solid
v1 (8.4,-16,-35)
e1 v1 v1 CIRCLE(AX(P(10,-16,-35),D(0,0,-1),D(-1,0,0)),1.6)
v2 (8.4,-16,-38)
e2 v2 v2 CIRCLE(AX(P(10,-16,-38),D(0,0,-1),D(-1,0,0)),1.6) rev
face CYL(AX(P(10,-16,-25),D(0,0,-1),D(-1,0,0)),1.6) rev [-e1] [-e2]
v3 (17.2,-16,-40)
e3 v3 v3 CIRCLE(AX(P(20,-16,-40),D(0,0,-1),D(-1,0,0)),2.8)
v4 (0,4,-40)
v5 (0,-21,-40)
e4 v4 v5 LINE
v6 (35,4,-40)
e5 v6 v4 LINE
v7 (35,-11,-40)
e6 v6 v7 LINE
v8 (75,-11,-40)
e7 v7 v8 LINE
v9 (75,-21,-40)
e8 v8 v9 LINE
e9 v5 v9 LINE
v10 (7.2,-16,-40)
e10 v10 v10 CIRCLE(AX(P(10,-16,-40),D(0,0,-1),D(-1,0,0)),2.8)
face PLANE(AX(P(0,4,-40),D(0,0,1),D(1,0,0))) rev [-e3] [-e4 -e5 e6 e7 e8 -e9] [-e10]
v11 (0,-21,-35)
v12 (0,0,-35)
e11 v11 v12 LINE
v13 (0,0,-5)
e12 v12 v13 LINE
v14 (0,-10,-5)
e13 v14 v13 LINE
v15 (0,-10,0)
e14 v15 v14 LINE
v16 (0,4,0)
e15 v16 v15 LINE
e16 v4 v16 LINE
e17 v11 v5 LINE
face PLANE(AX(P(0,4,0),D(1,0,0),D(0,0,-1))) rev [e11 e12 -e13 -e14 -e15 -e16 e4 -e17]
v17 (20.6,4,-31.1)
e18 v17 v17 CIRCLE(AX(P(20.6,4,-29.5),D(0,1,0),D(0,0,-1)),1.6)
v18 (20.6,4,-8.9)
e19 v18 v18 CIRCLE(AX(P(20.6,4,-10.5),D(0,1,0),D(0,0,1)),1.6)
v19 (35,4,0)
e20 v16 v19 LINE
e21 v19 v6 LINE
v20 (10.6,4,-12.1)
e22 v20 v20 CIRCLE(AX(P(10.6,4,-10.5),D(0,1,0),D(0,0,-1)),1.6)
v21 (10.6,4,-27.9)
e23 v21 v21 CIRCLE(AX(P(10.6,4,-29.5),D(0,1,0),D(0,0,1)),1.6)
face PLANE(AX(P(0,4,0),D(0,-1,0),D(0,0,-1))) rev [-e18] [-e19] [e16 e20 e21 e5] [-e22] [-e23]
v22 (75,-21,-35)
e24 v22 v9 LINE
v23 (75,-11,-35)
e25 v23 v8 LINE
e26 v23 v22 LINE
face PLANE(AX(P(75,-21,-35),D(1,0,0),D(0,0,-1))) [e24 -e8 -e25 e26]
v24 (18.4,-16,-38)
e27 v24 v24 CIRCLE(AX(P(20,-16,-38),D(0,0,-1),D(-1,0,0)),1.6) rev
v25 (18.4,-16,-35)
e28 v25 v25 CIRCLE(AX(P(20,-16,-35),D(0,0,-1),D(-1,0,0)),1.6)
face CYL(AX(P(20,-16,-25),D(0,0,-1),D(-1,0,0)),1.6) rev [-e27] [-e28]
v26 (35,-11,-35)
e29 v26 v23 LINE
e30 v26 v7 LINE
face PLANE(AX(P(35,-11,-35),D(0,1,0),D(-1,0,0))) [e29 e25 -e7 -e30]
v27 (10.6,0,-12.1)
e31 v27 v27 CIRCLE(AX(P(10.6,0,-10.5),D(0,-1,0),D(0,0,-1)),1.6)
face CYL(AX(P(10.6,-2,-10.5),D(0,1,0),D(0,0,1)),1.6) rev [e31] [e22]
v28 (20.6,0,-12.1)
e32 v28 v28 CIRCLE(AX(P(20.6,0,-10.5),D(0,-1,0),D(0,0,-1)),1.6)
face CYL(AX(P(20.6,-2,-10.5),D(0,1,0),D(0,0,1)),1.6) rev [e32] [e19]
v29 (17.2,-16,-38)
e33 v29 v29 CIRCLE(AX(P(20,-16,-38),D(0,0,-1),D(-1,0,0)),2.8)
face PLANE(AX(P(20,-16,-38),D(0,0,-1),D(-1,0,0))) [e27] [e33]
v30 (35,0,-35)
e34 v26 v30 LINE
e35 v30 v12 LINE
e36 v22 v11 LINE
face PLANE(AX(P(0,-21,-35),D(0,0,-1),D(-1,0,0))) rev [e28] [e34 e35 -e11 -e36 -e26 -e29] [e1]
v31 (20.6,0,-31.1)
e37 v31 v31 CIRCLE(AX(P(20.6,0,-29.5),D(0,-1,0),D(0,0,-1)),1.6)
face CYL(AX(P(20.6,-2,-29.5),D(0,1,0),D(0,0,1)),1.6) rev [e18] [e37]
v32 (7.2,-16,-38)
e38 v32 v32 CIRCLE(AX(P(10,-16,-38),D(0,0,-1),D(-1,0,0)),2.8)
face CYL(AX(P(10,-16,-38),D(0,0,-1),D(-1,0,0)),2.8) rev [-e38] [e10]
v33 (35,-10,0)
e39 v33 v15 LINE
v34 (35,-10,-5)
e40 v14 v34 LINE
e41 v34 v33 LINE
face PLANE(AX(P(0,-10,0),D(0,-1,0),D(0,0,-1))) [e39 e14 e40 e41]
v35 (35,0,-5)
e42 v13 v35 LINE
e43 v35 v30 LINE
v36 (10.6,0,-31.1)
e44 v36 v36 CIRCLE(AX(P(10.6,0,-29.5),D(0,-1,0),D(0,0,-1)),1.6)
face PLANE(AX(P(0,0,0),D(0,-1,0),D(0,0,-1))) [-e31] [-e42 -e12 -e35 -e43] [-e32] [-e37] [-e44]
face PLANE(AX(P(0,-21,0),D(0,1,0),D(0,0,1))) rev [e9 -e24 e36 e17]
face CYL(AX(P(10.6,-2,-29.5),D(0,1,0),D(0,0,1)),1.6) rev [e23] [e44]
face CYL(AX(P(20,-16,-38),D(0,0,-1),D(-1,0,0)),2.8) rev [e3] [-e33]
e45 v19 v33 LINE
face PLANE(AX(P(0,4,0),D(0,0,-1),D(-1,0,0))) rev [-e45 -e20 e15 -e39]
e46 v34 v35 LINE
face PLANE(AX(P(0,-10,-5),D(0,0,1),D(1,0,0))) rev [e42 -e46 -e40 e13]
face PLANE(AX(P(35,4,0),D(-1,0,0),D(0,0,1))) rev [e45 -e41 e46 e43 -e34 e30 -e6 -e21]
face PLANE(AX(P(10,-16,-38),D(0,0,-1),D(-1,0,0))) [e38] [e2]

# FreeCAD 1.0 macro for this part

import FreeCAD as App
import Part
import Sketcher
Q = App.Units.Quantity


def add_polygon(sketch, points):
    """Adds a closed chain of lines whose ends are joined by coincident constraints."""
    first, n = sketch.GeometryCount, len(points)
    for a, b in zip(points, points[1:] + points[:1]):
        sketch.addGeometry(Part.LineSegment(App.Vector(*a, 0), App.Vector(*b, 0)), False)
    for i in range(n):
        sketch.addConstraint(Sketcher.Constraint("Coincident", first + i, 2, first + (i + 1) % n, 1))

doc = App.newDocument("Part")
params = doc.addObject("Spreadsheet::Sheet", "Params")
for row, (alias, value) in enumerate([
    ("sketch1_width", "35 mm"),
    ("sketch1_height", "40 mm"),
    ("pad1_length", "4 mm"),
    ("sketch2_diameter", "3.2 mm"),
    ("pocket1_length", "6 mm"),
    ("sketch3_width", "35 mm"),
    ("sketch3_height", "5 mm"),
    ("pad2_length", "21 mm"),
    ("sketch4_diameter", "3.2 mm"),
    ("pocket2_length", "15 mm"),
    ("sketch5_diameter", "5.6 mm"),
    ("pocket3_length", "2 mm"),
    ("sketch6_width", "40 mm"),
    ("sketch6_height", "10 mm"),
    ("pad3_length", "5 mm"),
    ("sketch7_width", "35 mm"),
    ("sketch7_height", "5 mm"),
    ("pad4_length", "10 mm"),
], start=1):
    params.set(f"A{row}", alias)
    params.set(f"B{row}", "=" + value)
    params.setAlias(f"B{row}", alias)

body = doc.addObject("PartDesign::Body", "Body")

# Sketch on XZ plane
sketch1 = doc.addObject("Sketcher::SketchObject", "Sketch")
body.addObject(sketch1)
sketch1.AttachmentSupport = (doc.XZ_Plane, [""])
sketch1.MapMode = "FlatFace"
add_polygon(sketch1, [(0, -40), (0, 0), (35, 0), (35, -40)])  # lines 0-3
sketch1.addConstraint([
    Sketcher.Constraint("Vertical", 0),
    Sketcher.Constraint("Horizontal", 1),
    Sketcher.Constraint("Vertical", 2),
    Sketcher.Constraint("Horizontal", 3),
    Sketcher.Constraint("Coincident", 0, 2, -1, 1),
    Sketcher.Constraint("DistanceX", 1, 1, 1, 2, Q("35 mm")),
    Sketcher.Constraint("DistanceY", 0, 1, 0, 2, Q("40 mm")),
])
sketch1.setExpression("Constraints[9]", "Params.sketch1_width")
sketch1.setExpression("Constraints[10]", "Params.sketch1_height")
pad1 = doc.addObject("PartDesign::Pad", "Pad")
body.addObject(pad1)
pad1.Profile = sketch1
pad1.setExpression("Length", "Params.pad1_length")
pad1.Reversed = True

# Sketch on XZ plane
sketch2 = doc.addObject("Sketcher::SketchObject", "Sketch001")
body.addObject(sketch2)
sketch2.AttachmentSupport = (doc.XZ_Plane, [""])
sketch2.MapMode = "FlatFace"
sketch2.AttachmentOffset = App.Placement(App.Vector(0, 0, -4), App.Rotation())
sketch2.addGeometry([
    Part.Circle(App.Vector(10.6, -29.5, 0), App.Vector(0, 0, 1), 1.6),
    Part.Circle(App.Vector(20.6, -29.5, 0), App.Vector(0, 0, 1), 1.6),
    Part.Circle(App.Vector(20.6, -10.5, 0), App.Vector(0, 0, 1), 1.6),
    Part.Circle(App.Vector(10.6, -10.5, 0), App.Vector(0, 0, 1), 1.6),
], False)
sketch2.addConstraint([
    Sketcher.Constraint("Equal", 0, 1),
    Sketcher.Constraint("Equal", 1, 2),
    Sketcher.Constraint("Equal", 2, 3),
    Sketcher.Constraint("Horizontal", 0, 3, 1, 3),
    Sketcher.Constraint("Horizontal", 2, 3, 3, 3),
    Sketcher.Constraint("Vertical", 1, 3, 2, 3),
    Sketcher.Constraint("Vertical", 0, 3, 3, 3),
    Sketcher.Constraint("Diameter", 0, Q("3.2 mm")),
    Sketcher.Constraint("DistanceX", 0, 3, 1, 3, Q("10 mm")),
    Sketcher.Constraint("DistanceY", 1, 3, 2, 3, Q("19 mm")),
    Sketcher.Constraint("DistanceX", -1, 1, 0, 3, Q("10.6 mm")),
    Sketcher.Constraint("DistanceY", 0, 3, -1, 1, Q("29.5 mm")),
])
sketch2.setExpression("Constraints[7]", "Params.sketch2_diameter")
pocket1 = doc.addObject("PartDesign::Pocket", "Pocket")
body.addObject(pocket1)
pocket1.Profile = sketch2
pocket1.setExpression("Length", "Params.pocket1_length")
pocket1.Reversed = True

# Sketch on XZ plane
sketch3 = doc.addObject("Sketcher::SketchObject", "Sketch002")
body.addObject(sketch3)
sketch3.AttachmentSupport = (doc.XZ_Plane, [""])
sketch3.MapMode = "FlatFace"
add_polygon(sketch3, [(0, -35), (0, -40), (35, -40), (35, -35)])  # lines 0-3
sketch3.addConstraint([
    Sketcher.Constraint("Vertical", 0),
    Sketcher.Constraint("Horizontal", 1),
    Sketcher.Constraint("Vertical", 2),
    Sketcher.Constraint("Horizontal", 3),
    Sketcher.Constraint("PointOnObject", 0, 2, -2),
    Sketcher.Constraint("DistanceX", 1, 1, 1, 2, Q("35 mm")),
    Sketcher.Constraint("DistanceY", 0, 2, 0, 1, Q("5 mm")),
    Sketcher.Constraint("DistanceY", 0, 2, -1, 1, Q("40 mm")),
])
sketch3.setExpression("Constraints[9]", "Params.sketch3_width")
sketch3.setExpression("Constraints[10]", "Params.sketch3_height")
pad2 = doc.addObject("PartDesign::Pad", "Pad001")
body.addObject(pad2)
pad2.Profile = sketch3
pad2.setExpression("Length", "Params.pad2_length")

# Sketch on XY plane
sketch4 = doc.addObject("Sketcher::SketchObject", "Sketch003")
body.addObject(sketch4)
sketch4.AttachmentSupport = (doc.XY_Plane, [""])
sketch4.MapMode = "FlatFace"
sketch4.AttachmentOffset = App.Placement(App.Vector(0, 0, -40), App.Rotation())
sketch4.addGeometry([
    Part.Circle(App.Vector(10, -16, 0), App.Vector(0, 0, 1), 1.6),
    Part.Circle(App.Vector(20, -16, 0), App.Vector(0, 0, 1), 1.6),
], False)
sketch4.addConstraint([
    Sketcher.Constraint("Equal", 0, 1),
    Sketcher.Constraint("Horizontal", 0, 3, 1, 3),
    Sketcher.Constraint("Diameter", 0, Q("3.2 mm")),
    Sketcher.Constraint("DistanceX", -1, 1, 0, 3, Q("10 mm")),
    Sketcher.Constraint("DistanceY", 0, 3, -1, 1, Q("16 mm")),
    Sketcher.Constraint("DistanceX", -1, 1, 1, 3, Q("20 mm")),
])
sketch4.setExpression("Constraints[2]", "Params.sketch4_diameter")
pocket2 = doc.addObject("PartDesign::Pocket", "Pocket001")
body.addObject(pocket2)
pocket2.Profile = sketch4
pocket2.setExpression("Length", "Params.pocket2_length")
pocket2.Reversed = True

# Sketch on XY plane
sketch5 = doc.addObject("Sketcher::SketchObject", "Sketch004")
body.addObject(sketch5)
sketch5.AttachmentSupport = (doc.XY_Plane, [""])
sketch5.MapMode = "FlatFace"
sketch5.AttachmentOffset = App.Placement(App.Vector(0, 0, -40), App.Rotation())
sketch5.addGeometry([
    Part.Circle(App.Vector(20, -16, 0), App.Vector(0, 0, 1), 2.8),
    Part.Circle(App.Vector(10, -16, 0), App.Vector(0, 0, 1), 2.8),
], False)
sketch5.addConstraint([
    Sketcher.Constraint("Equal", 0, 1),
    Sketcher.Constraint("Horizontal", 0, 3, 1, 3),
    Sketcher.Constraint("Diameter", 0, Q("5.6 mm")),
    Sketcher.Constraint("DistanceX", -1, 1, 0, 3, Q("20 mm")),
    Sketcher.Constraint("DistanceY", 0, 3, -1, 1, Q("16 mm")),
    Sketcher.Constraint("DistanceX", -1, 1, 1, 3, Q("10 mm")),
])
sketch5.setExpression("Constraints[2]", "Params.sketch5_diameter")
pocket3 = doc.addObject("PartDesign::Pocket", "Pocket002")
body.addObject(pocket3)
pocket3.Profile = sketch5
pocket3.setExpression("Length", "Params.pocket3_length")
pocket3.Reversed = True

# Sketch on XY plane
sketch6 = doc.addObject("Sketcher::SketchObject", "Sketch005")
body.addObject(sketch6)
sketch6.AttachmentSupport = (doc.XY_Plane, [""])
sketch6.MapMode = "FlatFace"
sketch6.AttachmentOffset = App.Placement(App.Vector(0, 0, -40), App.Rotation())
add_polygon(sketch6, [(75, -11), (75, -21), (35, -21), (35, -11)])  # lines 0-3
sketch6.addConstraint([
    Sketcher.Constraint("Vertical", 0),
    Sketcher.Constraint("Horizontal", 1),
    Sketcher.Constraint("Vertical", 2),
    Sketcher.Constraint("Horizontal", 3),
    Sketcher.Constraint("DistanceX", 1, 2, 1, 1, Q("40 mm")),
    Sketcher.Constraint("DistanceY", 0, 2, 0, 1, Q("10 mm")),
    Sketcher.Constraint("DistanceX", -1, 1, 0, 2, Q("75 mm")),
    Sketcher.Constraint("DistanceY", 0, 2, -1, 1, Q("21 mm")),
])
sketch6.setExpression("Constraints[8]", "Params.sketch6_width")
sketch6.setExpression("Constraints[9]", "Params.sketch6_height")
pad3 = doc.addObject("PartDesign::Pad", "Pad002")
body.addObject(pad3)
pad3.Profile = sketch6
pad3.setExpression("Length", "Params.pad3_length")

# Sketch on XZ plane
sketch7 = doc.addObject("Sketcher::SketchObject", "Sketch006")
body.addObject(sketch7)
sketch7.AttachmentSupport = (doc.XZ_Plane, [""])
sketch7.MapMode = "FlatFace"
add_polygon(sketch7, [(0, 0), (0, -5), (35, -5), (35, 0)])  # lines 0-3
sketch7.addConstraint([
    Sketcher.Constraint("Vertical", 0),
    Sketcher.Constraint("Horizontal", 1),
    Sketcher.Constraint("Vertical", 2),
    Sketcher.Constraint("Horizontal", 3),
    Sketcher.Constraint("Coincident", 3, 2, -1, 1),
    Sketcher.Constraint("DistanceX", 1, 1, 1, 2, Q("35 mm")),
    Sketcher.Constraint("DistanceY", 0, 2, 0, 1, Q("5 mm")),
])
sketch7.setExpression("Constraints[9]", "Params.sketch7_width")
sketch7.setExpression("Constraints[10]", "Params.sketch7_height")
pad4 = doc.addObject("PartDesign::Pad", "Pad003")
body.addObject(pad4)
pad4.Profile = sketch7
pad4.setExpression("Length", "Params.pad4_length")

doc.recompute()
